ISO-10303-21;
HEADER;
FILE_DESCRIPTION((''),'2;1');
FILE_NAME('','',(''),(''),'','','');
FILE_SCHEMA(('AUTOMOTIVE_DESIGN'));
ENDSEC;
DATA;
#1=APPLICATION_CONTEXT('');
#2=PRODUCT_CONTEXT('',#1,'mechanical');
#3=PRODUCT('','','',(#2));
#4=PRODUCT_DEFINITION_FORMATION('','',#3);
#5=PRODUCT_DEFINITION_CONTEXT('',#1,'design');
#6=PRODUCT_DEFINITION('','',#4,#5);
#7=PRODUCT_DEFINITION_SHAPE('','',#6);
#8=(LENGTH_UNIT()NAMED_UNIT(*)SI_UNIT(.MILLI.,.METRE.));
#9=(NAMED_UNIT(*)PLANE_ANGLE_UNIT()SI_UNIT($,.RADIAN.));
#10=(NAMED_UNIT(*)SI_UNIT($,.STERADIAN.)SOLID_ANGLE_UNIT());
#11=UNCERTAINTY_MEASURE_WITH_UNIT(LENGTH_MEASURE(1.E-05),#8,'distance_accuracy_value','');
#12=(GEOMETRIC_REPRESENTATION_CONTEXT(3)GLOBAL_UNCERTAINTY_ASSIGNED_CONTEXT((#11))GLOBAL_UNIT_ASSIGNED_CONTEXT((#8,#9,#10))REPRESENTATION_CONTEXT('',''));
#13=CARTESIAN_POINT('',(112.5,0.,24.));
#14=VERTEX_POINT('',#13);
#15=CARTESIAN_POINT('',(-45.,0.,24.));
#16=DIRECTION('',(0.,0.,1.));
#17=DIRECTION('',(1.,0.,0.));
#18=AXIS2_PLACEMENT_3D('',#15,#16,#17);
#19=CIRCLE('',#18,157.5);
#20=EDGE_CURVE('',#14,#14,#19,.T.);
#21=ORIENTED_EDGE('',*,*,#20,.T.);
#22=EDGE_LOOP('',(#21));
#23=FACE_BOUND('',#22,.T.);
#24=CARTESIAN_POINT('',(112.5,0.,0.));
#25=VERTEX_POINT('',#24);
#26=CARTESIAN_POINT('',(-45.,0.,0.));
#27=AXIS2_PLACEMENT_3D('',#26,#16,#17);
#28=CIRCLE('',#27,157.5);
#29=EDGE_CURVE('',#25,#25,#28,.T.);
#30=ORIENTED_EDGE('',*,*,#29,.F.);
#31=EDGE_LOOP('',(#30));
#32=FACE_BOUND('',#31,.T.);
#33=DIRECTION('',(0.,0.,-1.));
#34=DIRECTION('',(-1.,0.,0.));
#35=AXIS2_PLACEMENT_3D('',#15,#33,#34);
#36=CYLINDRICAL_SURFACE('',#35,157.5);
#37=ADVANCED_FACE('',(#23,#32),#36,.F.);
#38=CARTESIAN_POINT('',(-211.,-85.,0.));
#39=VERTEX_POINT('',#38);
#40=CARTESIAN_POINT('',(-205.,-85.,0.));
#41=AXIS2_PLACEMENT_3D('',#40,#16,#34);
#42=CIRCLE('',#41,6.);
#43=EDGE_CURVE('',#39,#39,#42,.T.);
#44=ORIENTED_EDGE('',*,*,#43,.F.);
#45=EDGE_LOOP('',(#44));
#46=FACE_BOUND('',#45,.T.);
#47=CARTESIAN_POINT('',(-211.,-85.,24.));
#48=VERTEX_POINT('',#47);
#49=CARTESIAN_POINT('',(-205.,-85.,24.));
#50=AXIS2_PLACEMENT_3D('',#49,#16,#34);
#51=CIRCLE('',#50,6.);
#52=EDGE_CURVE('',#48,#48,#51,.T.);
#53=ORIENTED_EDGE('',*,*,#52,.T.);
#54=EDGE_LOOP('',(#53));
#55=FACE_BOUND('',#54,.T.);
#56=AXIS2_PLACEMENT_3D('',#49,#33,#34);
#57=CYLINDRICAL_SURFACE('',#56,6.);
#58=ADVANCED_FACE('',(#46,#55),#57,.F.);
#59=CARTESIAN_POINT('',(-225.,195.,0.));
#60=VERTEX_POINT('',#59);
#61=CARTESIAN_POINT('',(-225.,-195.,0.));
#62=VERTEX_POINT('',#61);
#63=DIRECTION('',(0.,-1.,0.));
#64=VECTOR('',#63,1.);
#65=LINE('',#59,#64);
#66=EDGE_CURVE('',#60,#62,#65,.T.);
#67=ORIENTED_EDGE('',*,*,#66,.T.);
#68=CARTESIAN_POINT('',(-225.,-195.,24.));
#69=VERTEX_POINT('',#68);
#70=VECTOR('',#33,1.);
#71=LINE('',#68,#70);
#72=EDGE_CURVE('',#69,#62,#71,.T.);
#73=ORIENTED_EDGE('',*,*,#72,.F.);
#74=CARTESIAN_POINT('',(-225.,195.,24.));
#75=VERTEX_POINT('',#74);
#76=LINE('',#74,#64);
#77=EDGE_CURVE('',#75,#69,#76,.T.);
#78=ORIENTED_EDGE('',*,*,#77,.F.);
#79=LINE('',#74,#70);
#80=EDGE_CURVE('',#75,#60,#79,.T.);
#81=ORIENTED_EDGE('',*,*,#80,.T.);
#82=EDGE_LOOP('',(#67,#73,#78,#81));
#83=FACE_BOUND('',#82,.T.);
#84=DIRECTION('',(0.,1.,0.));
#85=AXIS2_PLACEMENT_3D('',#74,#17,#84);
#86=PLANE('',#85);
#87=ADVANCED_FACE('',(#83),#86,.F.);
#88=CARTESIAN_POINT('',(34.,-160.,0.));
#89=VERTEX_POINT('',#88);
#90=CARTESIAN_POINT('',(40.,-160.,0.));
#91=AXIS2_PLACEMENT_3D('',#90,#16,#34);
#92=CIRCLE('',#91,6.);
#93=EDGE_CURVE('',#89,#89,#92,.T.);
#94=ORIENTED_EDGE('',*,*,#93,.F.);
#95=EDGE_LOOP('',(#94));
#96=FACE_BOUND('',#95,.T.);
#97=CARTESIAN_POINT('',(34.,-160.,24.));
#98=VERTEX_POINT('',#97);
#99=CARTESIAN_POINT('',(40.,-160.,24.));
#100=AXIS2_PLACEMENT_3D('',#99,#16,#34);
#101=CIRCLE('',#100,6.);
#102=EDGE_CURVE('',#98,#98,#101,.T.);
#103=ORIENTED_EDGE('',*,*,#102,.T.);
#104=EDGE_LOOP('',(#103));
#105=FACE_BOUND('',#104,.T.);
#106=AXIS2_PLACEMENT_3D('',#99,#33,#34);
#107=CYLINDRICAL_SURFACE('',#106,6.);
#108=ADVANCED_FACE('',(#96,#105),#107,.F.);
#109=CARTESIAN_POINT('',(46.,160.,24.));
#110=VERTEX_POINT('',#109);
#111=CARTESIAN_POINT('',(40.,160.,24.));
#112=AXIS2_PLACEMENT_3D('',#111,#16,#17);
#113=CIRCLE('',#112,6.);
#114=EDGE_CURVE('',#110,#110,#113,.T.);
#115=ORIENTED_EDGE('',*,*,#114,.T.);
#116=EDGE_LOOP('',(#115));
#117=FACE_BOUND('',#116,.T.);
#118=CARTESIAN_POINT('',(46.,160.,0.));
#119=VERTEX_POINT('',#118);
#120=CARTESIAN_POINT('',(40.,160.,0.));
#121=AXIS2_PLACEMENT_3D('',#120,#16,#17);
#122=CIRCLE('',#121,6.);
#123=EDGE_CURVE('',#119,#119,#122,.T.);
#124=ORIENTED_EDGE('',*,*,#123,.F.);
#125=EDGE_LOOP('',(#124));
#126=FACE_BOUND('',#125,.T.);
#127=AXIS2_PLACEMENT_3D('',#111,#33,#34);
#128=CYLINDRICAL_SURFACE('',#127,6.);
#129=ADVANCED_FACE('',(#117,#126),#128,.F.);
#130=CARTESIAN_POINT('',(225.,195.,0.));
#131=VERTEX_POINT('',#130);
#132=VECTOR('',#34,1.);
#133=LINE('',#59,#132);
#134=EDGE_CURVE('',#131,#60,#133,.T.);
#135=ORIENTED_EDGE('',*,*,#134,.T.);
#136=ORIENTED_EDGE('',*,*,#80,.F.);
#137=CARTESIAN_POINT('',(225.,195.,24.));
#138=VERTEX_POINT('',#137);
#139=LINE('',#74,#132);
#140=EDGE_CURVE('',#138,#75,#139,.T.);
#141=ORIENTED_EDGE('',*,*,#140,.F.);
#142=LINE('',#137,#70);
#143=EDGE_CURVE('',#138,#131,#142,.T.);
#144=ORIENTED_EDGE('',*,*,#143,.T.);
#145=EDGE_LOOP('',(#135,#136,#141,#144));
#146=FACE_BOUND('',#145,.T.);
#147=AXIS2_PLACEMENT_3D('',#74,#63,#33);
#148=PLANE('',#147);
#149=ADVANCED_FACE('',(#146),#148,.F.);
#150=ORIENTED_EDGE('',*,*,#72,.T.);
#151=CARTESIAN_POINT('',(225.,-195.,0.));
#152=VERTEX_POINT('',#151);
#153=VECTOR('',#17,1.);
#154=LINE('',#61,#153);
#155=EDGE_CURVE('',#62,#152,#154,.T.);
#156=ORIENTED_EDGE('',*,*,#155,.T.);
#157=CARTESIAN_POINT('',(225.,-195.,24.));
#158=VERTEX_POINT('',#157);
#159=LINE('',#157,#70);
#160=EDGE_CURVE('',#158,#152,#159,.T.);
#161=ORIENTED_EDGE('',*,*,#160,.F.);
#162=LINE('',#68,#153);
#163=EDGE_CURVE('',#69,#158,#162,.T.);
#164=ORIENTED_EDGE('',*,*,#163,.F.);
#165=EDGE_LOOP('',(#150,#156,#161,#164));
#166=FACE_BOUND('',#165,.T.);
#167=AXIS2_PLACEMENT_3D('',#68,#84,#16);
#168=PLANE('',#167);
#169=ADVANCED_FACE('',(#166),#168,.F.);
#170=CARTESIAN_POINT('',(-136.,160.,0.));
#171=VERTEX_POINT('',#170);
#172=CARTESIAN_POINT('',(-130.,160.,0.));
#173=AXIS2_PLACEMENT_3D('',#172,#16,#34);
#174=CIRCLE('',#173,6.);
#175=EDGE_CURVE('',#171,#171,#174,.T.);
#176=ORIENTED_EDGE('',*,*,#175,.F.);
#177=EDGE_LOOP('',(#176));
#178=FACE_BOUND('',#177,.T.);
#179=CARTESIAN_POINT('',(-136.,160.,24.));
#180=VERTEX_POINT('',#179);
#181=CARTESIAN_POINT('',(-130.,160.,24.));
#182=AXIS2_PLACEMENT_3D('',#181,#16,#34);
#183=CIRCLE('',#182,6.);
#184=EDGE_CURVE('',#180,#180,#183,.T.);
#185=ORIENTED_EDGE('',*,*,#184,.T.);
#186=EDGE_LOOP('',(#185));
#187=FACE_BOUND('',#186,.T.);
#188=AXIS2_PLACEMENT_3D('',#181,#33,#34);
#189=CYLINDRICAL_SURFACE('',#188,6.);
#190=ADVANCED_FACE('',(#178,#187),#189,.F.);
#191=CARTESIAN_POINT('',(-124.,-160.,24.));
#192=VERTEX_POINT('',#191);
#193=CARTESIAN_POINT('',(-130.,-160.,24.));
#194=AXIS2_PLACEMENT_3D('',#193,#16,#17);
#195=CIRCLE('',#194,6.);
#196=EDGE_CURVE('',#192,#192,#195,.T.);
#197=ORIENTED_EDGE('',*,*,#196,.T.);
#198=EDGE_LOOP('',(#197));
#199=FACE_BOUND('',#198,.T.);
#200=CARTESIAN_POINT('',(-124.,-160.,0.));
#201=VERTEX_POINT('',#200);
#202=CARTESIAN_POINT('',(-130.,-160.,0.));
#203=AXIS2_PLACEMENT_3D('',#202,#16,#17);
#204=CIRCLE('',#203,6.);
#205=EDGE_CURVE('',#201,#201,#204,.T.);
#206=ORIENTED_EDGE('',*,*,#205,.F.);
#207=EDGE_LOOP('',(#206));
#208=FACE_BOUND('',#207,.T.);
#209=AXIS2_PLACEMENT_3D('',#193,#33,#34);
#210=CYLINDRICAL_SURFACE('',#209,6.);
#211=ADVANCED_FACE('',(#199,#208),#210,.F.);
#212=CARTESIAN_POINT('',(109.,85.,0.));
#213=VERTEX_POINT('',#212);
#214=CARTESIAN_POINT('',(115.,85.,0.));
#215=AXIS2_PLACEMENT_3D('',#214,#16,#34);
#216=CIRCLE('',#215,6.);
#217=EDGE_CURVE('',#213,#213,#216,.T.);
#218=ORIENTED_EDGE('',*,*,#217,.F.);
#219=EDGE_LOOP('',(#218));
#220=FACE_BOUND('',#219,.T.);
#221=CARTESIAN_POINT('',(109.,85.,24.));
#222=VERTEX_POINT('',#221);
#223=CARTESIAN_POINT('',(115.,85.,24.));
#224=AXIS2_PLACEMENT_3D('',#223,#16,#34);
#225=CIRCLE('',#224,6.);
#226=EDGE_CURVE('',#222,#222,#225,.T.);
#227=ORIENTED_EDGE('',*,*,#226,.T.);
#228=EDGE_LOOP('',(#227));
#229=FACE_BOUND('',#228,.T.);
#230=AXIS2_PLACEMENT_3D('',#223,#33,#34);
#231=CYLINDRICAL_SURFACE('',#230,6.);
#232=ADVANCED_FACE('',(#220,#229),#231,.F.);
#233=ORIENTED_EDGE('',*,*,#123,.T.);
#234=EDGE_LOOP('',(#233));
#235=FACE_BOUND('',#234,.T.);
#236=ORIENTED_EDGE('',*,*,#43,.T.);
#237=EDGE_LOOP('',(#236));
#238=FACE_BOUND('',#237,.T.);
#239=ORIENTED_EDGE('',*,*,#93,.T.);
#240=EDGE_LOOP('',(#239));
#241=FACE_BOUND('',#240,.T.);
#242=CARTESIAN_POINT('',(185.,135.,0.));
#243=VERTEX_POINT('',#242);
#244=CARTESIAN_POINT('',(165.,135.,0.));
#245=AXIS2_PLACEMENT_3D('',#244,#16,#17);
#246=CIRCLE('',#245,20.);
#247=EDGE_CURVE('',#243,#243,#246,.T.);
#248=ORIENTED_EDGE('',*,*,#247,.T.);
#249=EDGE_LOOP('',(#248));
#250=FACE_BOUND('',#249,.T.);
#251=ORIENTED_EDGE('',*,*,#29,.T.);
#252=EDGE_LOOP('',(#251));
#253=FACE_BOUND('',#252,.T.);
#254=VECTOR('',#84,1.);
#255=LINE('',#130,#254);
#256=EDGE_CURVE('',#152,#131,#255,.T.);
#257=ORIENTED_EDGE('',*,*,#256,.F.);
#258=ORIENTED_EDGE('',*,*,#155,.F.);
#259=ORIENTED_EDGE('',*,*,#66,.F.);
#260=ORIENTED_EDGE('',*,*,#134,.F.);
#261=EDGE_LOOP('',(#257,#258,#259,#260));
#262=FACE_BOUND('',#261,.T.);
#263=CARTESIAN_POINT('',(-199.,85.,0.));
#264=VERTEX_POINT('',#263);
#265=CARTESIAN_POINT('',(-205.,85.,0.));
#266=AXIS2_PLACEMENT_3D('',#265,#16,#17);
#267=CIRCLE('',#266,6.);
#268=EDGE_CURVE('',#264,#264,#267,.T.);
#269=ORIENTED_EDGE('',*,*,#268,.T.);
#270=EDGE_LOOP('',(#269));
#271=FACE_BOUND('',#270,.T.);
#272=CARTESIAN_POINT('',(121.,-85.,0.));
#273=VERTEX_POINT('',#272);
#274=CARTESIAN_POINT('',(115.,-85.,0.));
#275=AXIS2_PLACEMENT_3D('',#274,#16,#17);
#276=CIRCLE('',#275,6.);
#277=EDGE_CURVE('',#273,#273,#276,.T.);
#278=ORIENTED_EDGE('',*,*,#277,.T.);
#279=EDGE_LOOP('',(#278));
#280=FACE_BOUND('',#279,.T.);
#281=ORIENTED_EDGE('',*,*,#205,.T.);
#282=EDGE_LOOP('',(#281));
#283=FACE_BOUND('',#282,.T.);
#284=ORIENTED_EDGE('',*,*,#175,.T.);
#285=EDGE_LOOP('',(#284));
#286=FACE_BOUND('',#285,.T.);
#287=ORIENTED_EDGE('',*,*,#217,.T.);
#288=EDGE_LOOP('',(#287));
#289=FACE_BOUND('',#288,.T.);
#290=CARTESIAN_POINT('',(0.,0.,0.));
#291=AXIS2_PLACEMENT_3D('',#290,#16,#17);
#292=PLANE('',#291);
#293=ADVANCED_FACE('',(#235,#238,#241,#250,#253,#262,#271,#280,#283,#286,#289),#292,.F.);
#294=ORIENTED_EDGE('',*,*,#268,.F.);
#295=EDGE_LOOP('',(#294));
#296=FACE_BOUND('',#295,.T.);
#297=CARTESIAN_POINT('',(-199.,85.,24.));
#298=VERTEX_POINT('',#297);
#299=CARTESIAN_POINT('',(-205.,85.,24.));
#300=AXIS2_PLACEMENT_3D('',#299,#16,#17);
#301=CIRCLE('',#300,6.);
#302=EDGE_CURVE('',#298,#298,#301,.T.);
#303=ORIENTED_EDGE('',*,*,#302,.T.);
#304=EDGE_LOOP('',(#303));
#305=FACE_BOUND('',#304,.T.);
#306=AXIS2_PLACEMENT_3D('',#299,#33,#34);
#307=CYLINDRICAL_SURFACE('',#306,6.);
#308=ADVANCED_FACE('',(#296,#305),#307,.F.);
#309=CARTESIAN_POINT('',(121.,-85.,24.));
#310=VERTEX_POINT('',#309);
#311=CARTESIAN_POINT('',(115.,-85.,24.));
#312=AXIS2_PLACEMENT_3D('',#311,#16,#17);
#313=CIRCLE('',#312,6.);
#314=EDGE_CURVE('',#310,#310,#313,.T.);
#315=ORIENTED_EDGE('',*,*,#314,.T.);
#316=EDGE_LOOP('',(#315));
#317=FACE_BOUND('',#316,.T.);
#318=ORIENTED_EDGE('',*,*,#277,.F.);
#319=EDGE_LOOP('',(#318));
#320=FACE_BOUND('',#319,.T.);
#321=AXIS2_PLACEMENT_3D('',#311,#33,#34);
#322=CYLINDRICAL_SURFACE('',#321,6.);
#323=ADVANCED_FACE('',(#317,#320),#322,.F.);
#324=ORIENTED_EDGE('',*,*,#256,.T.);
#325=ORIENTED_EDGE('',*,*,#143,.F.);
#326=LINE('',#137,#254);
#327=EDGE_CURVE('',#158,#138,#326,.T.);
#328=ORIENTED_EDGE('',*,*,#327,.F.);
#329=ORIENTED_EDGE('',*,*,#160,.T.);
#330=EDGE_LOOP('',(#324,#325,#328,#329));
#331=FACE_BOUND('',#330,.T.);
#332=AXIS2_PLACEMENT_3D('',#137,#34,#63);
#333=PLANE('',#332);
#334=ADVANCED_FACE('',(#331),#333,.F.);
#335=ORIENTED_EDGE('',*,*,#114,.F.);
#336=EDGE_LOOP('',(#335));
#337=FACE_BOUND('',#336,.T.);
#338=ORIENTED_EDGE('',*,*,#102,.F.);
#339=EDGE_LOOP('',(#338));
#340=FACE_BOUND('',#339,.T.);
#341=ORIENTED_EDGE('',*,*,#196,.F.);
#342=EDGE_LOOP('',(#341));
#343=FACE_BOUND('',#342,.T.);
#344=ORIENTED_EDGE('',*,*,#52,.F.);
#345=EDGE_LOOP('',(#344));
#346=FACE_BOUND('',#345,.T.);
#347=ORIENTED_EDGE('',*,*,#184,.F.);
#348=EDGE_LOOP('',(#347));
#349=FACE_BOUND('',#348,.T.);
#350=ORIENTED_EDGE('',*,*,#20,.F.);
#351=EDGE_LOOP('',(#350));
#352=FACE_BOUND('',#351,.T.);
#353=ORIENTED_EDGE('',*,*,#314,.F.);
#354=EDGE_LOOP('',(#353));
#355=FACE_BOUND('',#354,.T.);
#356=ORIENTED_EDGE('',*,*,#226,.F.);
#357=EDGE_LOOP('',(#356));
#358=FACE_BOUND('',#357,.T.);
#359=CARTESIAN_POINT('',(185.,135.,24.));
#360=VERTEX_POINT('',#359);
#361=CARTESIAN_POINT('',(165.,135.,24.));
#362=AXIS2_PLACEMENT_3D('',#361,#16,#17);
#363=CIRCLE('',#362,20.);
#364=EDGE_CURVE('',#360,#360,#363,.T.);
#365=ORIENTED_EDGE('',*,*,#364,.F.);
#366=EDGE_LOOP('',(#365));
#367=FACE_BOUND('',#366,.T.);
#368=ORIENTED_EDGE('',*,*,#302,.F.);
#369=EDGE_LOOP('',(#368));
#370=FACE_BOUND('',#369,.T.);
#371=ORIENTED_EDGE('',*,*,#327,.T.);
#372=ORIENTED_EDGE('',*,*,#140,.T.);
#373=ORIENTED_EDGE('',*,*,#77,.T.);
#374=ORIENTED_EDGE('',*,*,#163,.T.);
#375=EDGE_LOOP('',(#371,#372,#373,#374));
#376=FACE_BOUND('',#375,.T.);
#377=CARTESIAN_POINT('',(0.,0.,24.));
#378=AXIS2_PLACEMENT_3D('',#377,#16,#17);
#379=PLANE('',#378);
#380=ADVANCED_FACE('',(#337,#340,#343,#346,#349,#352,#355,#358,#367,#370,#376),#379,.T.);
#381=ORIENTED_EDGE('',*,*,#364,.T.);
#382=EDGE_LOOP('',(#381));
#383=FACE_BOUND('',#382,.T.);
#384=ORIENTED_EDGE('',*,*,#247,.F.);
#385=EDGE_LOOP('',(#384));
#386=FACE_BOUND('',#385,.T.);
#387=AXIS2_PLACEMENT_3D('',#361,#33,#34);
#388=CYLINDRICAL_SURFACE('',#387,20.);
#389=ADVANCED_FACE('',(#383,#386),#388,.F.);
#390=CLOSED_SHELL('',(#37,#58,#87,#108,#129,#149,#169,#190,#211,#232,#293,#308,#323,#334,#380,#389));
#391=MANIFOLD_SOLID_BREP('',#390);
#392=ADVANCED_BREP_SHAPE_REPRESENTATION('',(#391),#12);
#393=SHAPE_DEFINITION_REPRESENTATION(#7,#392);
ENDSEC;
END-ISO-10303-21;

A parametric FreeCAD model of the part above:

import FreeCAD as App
import Part
import Sketcher
from FreeCAD import Vector
Q = App.Units.Quantity


def add_polygon(sketch, points):
    """Adds a closed chain of lines whose ends are joined by coincident constraints."""
    first, n = sketch.GeometryCount, len(points)
    for a, b in zip(points, points[1:] + points[:1]):
        sketch.addGeometry(Part.LineSegment(App.Vector(*a, 0), App.Vector(*b, 0)), False)
    for i in range(n):
        sketch.addConstraint(Sketcher.Constraint("Coincident", first + i, 2, first + (i + 1) % n, 1))

doc = App.newDocument("Part")
body = doc.addObject("PartDesign::Body", "Body")

# Sketch on XY plane
sketch1 = body.newObject("Sketcher::SketchObject", "Sketch")
sketch1.AttachmentSupport = (doc.getObject("XY_Plane"), [""])
sketch1.MapMode = "FlatFace"
add_polygon(sketch1, [(-225, 195), (-225, -195), (225, -195), (225, 195)])  # lines 0-3
sketch1.addGeometry(Part.Circle(Vector(-130, -160, 0), Vector(0, 0, 1), 6), False)  # 4
sketch1.addGeometry(Part.Circle(Vector(-205, -85, 0), Vector(0, 0, 1), 6), False)  # 5
sketch1.addGeometry(Part.Circle(Vector(40, -160, 0), Vector(0, 0, 1), 6), False)  # 6
sketch1.addGeometry(Part.Circle(Vector(115, -85, 0), Vector(0, 0, 1), 6), False)  # 7
sketch1.addGeometry(Part.Circle(Vector(-45, 0, 0), Vector(0, 0, 1), 157.5), False)  # 8
sketch1.addGeometry(Part.Circle(Vector(-205, 85, 0), Vector(0, 0, 1), 6), False)  # 9
sketch1.addGeometry(Part.Circle(Vector(-130, 160, 0), Vector(0, 0, 1), 6), False)  # 10
sketch1.addGeometry(Part.Circle(Vector(40, 160, 0), Vector(0, 0, 1), 6), False)  # 11
sketch1.addGeometry(Part.Circle(Vector(115, 85, 0), Vector(0, 0, 1), 6), False)  # 12
sketch1.addGeometry(Part.Circle(Vector(165, 135, 0), Vector(0, 0, 1), 20), False)  # 13
sketch1.addConstraint(Sketcher.Constraint("Vertical", 0))
sketch1.addConstraint(Sketcher.Constraint("Horizontal", 1))
sketch1.addConstraint(Sketcher.Constraint("Vertical", 2))
sketch1.addConstraint(Sketcher.Constraint("Horizontal", 3))
sketch1.addConstraint(Sketcher.Constraint("Equal", 4, 5))
sketch1.addConstraint(Sketcher.Constraint("Equal", 5, 6))
sketch1.addConstraint(Sketcher.Constraint("Equal", 6, 7))
sketch1.addConstraint(Sketcher.Constraint("Equal", 7, 9))
sketch1.addConstraint(Sketcher.Constraint("Equal", 9, 10))
sketch1.addConstraint(Sketcher.Constraint("Equal", 10, 11))
sketch1.addConstraint(Sketcher.Constraint("Equal", 11, 12))
sketch1.addConstraint(Sketcher.Constraint("Symmetric", 0, 2, 2, 2, -1, 1))
sketch1.addConstraint(Sketcher.Constraint("Symmetric", 5, 3, 9, 3, -1))
sketch1.addConstraint(Sketcher.Constraint("Symmetric", 4, 3, 10, 3, -1))
sketch1.addConstraint(Sketcher.Constraint("Symmetric", 6, 3, 11, 3, -1))
sketch1.addConstraint(Sketcher.Constraint("Symmetric", 7, 3, 12, 3, -1))
sketch1.addConstraint(Sketcher.Constraint("PointOnObject", 8, 3, -1))
sketch1.addConstraint(Sketcher.Constraint("Horizontal", 4, 3, 6, 3))
sketch1.addConstraint(Sketcher.Constraint("Horizontal", 5, 3, 7, 3))
sketch1.addConstraint(Sketcher.Constraint("Diameter", 4, Q("12 mm")))
sketch1.addConstraint(Sketcher.Constraint("Diameter", 8, Q("315 mm")))
sketch1.addConstraint(Sketcher.Constraint("Diameter", 13, Q("40 mm")))
sketch1.addConstraint(Sketcher.Constraint("DistanceX", 1, 1, 1, 2, Q("450 mm")))
sketch1.addConstraint(Sketcher.Constraint("DistanceY", 0, 2, 0, 1, Q("390 mm")))
sketch1.addConstraint(Sketcher.Constraint("DistanceX", 4, 3, -1, 1, Q("130 mm")))
sketch1.addConstraint(Sketcher.Constraint("DistanceY", 4, 3, -1, 1, Q("160 mm")))
sketch1.addConstraint(Sketcher.Constraint("DistanceX", 5, 3, -1, 1, Q("205 mm")))
sketch1.addConstraint(Sketcher.Constraint("DistanceY", 5, 3, -1, 1, Q("85 mm")))
sketch1.addConstraint(Sketcher.Constraint("DistanceX", -1, 1, 6, 3, Q("40 mm")))
sketch1.addConstraint(Sketcher.Constraint("DistanceX", -1, 1, 7, 3, Q("115 mm")))
sketch1.addConstraint(Sketcher.Constraint("DistanceX", 8, 3, -1, 1, Q("45 mm")))
sketch1.addConstraint(Sketcher.Constraint("DistanceX", -1, 1, 13, 3, Q("165 mm")))
sketch1.addConstraint(Sketcher.Constraint("DistanceY", -1, 1, 13, 3, Q("135 mm")))
pad1 = body.newObject("PartDesign::Pad", "Pad")
pad1.Profile = sketch1
pad1.Length = 24

doc.recompute()
